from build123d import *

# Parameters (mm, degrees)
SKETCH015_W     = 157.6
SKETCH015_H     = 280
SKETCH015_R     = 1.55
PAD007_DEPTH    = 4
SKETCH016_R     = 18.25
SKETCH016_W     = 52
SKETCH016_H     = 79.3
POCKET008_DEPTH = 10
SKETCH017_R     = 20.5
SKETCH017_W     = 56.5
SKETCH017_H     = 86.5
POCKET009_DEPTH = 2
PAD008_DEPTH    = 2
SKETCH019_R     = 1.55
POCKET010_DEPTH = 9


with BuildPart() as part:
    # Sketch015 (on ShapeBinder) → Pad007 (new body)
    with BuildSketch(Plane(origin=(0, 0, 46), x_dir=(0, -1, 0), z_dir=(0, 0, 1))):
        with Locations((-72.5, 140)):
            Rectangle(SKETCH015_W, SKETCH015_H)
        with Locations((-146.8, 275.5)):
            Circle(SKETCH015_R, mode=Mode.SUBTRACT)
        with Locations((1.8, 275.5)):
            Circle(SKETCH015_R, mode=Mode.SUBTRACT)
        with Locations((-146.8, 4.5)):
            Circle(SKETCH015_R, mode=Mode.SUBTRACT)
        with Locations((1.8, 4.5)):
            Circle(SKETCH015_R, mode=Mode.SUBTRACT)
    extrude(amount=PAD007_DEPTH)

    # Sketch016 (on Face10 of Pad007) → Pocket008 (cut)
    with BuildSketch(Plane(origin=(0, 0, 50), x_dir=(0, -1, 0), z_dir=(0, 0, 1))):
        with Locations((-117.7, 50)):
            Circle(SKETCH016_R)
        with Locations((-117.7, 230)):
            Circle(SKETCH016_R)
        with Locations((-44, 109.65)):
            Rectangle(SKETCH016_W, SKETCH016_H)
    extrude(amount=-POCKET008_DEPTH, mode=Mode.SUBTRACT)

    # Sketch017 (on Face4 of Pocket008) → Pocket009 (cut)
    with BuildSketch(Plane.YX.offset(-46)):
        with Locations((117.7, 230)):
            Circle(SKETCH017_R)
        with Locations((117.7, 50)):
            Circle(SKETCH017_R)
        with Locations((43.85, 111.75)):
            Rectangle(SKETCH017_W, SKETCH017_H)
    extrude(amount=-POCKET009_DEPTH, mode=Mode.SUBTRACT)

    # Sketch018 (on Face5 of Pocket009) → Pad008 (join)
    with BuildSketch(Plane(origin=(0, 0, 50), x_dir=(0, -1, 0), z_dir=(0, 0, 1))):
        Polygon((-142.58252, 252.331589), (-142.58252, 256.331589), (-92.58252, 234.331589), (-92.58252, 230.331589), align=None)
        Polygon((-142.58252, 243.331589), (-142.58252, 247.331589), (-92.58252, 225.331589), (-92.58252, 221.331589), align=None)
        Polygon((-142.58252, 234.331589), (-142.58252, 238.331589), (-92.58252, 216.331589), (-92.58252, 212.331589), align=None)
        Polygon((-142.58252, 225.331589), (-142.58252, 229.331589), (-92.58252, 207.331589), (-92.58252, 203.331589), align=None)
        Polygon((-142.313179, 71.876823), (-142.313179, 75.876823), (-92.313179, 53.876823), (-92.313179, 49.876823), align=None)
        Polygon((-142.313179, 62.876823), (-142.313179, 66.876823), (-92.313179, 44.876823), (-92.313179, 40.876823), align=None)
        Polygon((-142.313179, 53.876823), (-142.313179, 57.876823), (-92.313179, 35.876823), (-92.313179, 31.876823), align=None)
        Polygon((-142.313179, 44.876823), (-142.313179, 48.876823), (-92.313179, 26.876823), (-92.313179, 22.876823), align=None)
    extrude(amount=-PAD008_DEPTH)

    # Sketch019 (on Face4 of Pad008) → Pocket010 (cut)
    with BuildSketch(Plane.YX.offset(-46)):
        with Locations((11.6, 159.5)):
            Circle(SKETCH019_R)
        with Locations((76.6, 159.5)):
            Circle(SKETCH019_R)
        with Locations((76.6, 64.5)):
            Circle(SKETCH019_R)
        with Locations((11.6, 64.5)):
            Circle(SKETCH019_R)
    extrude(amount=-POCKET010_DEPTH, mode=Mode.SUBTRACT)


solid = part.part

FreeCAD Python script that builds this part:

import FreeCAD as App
import Part
import Sketcher
from FreeCAD import Vector


def add_polygon(sketch, points):
    """Adds a closed chain of lines whose ends are joined by coincident constraints."""
    first, n = sketch.GeometryCount, len(points)
    for a, b in zip(points, points[1:] + points[:1]):
        sketch.addGeometry(Part.LineSegment(App.Vector(*a, 0), App.Vector(*b, 0)), False)
    for i in range(n):
        sketch.addConstraint(Sketcher.Constraint("Coincident", first + i, 2, first + (i + 1) % n, 1))

doc = App.newDocument("Part")
body = doc.addObject("PartDesign::Body", "Body")

sketch1 = body.newObject("Sketcher::SketchObject", "Sketch")
sketch1.AttachmentSupport = (doc.getObject("XY_Plane"), [""])
sketch1.MapMode = "FlatFace"
sketch1.AttachmentOffset = App.Placement(Vector(0, 0, 46), App.Rotation())
add_polygon(sketch1, [(280, 151.3), (0, 151.3), (0, -6.3), (280, -6.3)])
sketch1.addGeometry(Part.Circle(Vector(4.5, 146.8, 0), Vector(0, 0, 1), 1.6), False)
sketch1.addGeometry(Part.Circle(Vector(4.5, -1.8, 0), Vector(0, 0, 1), 1.6), False)
sketch1.addGeometry(Part.Circle(Vector(275.5, 146.8, 0), Vector(0, 0, 1), 1.6), False)
sketch1.addGeometry(Part.Circle(Vector(275.5, -1.8, 0), Vector(0, 0, 1), 1.6), False)
sketch1.addConstraint([
    Sketcher.Constraint("Horizontal", 0),
    Sketcher.Constraint("Vertical", 1),
    Sketcher.Constraint("Horizontal", 2),
    Sketcher.Constraint("Vertical", 3),
    Sketcher.Constraint("Equal", 4, 5),
    Sketcher.Constraint("Equal", 5, 6),
    Sketcher.Constraint("Equal", 6, 7),
    Sketcher.Constraint("PointOnObject", 0, 2, -2),
    Sketcher.Constraint("Horizontal", 4, 3, 6, 3),
    Sketcher.Constraint("Horizontal", 5, 3, 7, 3),
    Sketcher.Constraint("Vertical", 4, 3, 5, 3),
    Sketcher.Constraint("Vertical", 6, 3, 7, 3),
    Sketcher.Constraint("Diameter", 4, 3.1),
    Sketcher.Constraint("DistanceX", 0, 2, 0, 1, 280.0),
    Sketcher.Constraint("DistanceY", 1, 2, 1, 1, 157.6),
    Sketcher.Constraint("DistanceX", 4, 3, 6, 3, 271.0),
    Sketcher.Constraint("DistanceX", -1, 1, 4, 3, 4.5),
    Sketcher.Constraint("DistanceY", -1, 1, 4, 3, 146.8),
    Sketcher.Constraint("DistanceY", 5, 3, -1, 1, 1.8),
    Sketcher.Constraint("DistanceY", -1, 1, 0, 2, 151.3),
])
pad1 = body.newObject("PartDesign::Pad", "Pad")
pad1.Profile = sketch1
pad1.Length = 4

sketch2 = body.newObject("Sketcher::SketchObject", "Sketch001")
sketch2.AttachmentSupport = (doc.getObject("XY_Plane"), [""])
sketch2.MapMode = "FlatFace"
sketch2.AttachmentOffset = App.Placement(Vector(0, 0, 50), App.Rotation())
sketch2.addGeometry(Part.Circle(Vector(50, 118, 0), Vector(0, 0, 1), 18), False)
sketch2.addGeometry(Part.Circle(Vector(230, 118, 0), Vector(0, 0, 1), 18), False)
add_polygon(sketch2, [(149, 70), (70, 70), (70, 18), (149, 18)])
sketch2.addConstraint([
    Sketcher.Constraint("Horizontal", 2),
    Sketcher.Constraint("Vertical", 3),
    Sketcher.Constraint("Horizontal", 4),
    Sketcher.Constraint("Vertical", 5),
    Sketcher.Constraint("Equal", 0, 1),
    Sketcher.Constraint("Horizontal", 0, 3, 1, 3),
    Sketcher.Constraint("Diameter", 0, 36.5),
    Sketcher.Constraint("DistanceY", 3, 2, 3, 1, 52.0),
    Sketcher.Constraint("DistanceX", 2, 2, 2, 1, 79.3),
    Sketcher.Constraint("DistanceX", -1, 1, 0, 3, 50.0),
    Sketcher.Constraint("DistanceX", -1, 1, 1, 3, 230.0),
    Sketcher.Constraint("DistanceX", -1, 1, 2, 2, 70.0),
    Sketcher.Constraint("DistanceY", -1, 1, 2, 2, 70.0),
    Sketcher.Constraint("DistanceY", -1, 1, 0, 3, 117.7),
])
pocket1 = body.newObject("PartDesign::Pocket", "Pocket")
pocket1.Profile = sketch2
pocket1.Length = 10

sketch3 = body.newObject("Sketcher::SketchObject", "Sketch002")
sketch3.AttachmentSupport = (doc.getObject("XY_Plane"), [""])
sketch3.MapMode = "FlatFace"
sketch3.AttachmentOffset = App.Placement(Vector(0, 0, 46), App.Rotation())
sketch3.addGeometry(Part.Circle(Vector(230, 118, 0), Vector(0, 0, 1), 20), False)
sketch3.addGeometry(Part.Circle(Vector(50, 118, 0), Vector(0, 0, 1), 20), False)
add_polygon(sketch3, [(155, 16), (68, 16), (68, 72), (155, 72)])
sketch3.addConstraint([
    Sketcher.Constraint("Horizontal", 2),
    Sketcher.Constraint("Vertical", 3),
    Sketcher.Constraint("Horizontal", 4),
    Sketcher.Constraint("Vertical", 5),
    Sketcher.Constraint("Equal", 0, 1),
    Sketcher.Constraint("Horizontal", 0, 3, 1, 3),
    Sketcher.Constraint("Diameter", 0, 41.0),
    Sketcher.Constraint("DistanceX", 2, 2, 2, 1, 86.5),
    Sketcher.Constraint("DistanceY", 3, 1, 3, 2, 56.5),
    Sketcher.Constraint("DistanceX", -1, 1, 0, 3, 230.0),
    Sketcher.Constraint("DistanceX", -1, 1, 1, 3, 50.0),
    Sketcher.Constraint("DistanceX", -1, 1, 4, 2, 155.0),
    Sketcher.Constraint("DistanceY", -1, 1, 0, 3, 117.7),
    Sketcher.Constraint("DistanceY", -1, 1, 2, 2, 15.6),
])
pocket2 = body.newObject("PartDesign::Pocket", "Pocket001")
pocket2.Profile = sketch3
pocket2.Length = 2
pocket2.Reversed = True

sketch4 = body.newObject("Sketcher::SketchObject", "Sketch003")
sketch4.AttachmentSupport = (doc.getObject("XY_Plane"), [""])
sketch4.MapMode = "FlatFace"
sketch4.AttachmentOffset = App.Placement(Vector(0, 0, 50), App.Rotation())
add_polygon(sketch4, [(256.3, 142.6), (252.3, 142.6), (230.3, 92.6), (234.3, 92.6)])
add_polygon(sketch4, [(247.3, 142.6), (243.3, 142.6), (221.3, 92.6), (225.3, 92.6)])
add_polygon(sketch4, [(238.3, 142.6), (234.3, 142.6), (212.3, 92.6), (216.3, 92.6)])
add_polygon(sketch4, [(229.3, 142.6), (225.3, 142.6), (203.3, 92.6), (207.3, 92.6)])
add_polygon(sketch4, [(75.9, 142.3), (71.9, 142.3), (49.9, 92.3), (53.9, 92.3)])
add_polygon(sketch4, [(66.9, 142.3), (62.9, 142.3), (40.9, 92.3), (44.9, 92.3)])
add_polygon(sketch4, [(57.9, 142.3), (53.9, 142.3), (31.9, 92.3), (35.9, 92.3)])
add_polygon(sketch4, [(48.9, 142.3), (44.9, 142.3), (22.9, 92.3), (26.9, 92.3)])
sketch4.addConstraint([
    Sketcher.Constraint("Horizontal", 0),
    Sketcher.Constraint("Horizontal", 2),
    Sketcher.Constraint("Horizontal", 4),
    Sketcher.Constraint("Horizontal", 6),
    Sketcher.Constraint("Horizontal", 8),
    Sketcher.Constraint("Horizontal", 10),
    Sketcher.Constraint("Horizontal", 12),
    Sketcher.Constraint("Horizontal", 14),
    Sketcher.Constraint("Horizontal", 16),
    Sketcher.Constraint("Horizontal", 18),
    Sketcher.Constraint("Horizontal", 20),
    Sketcher.Constraint("Horizontal", 22),
    Sketcher.Constraint("Horizontal", 24),
    Sketcher.Constraint("Horizontal", 26),
    Sketcher.Constraint("Horizontal", 28),
    Sketcher.Constraint("Horizontal", 30),
    Sketcher.Constraint("Parallel", 1, 3),
    Sketcher.Constraint("Parallel", 3, 5),
    Sketcher.Constraint("Parallel", 5, 7),
    Sketcher.Constraint("Parallel", 7, 9),
    Sketcher.Constraint("Parallel", 9, 11),
    Sketcher.Constraint("Parallel", 11, 13),
    Sketcher.Constraint("Parallel", 13, 15),
    Sketcher.Constraint("Parallel", 15, 17),
    Sketcher.Constraint("Parallel", 17, 19),
    Sketcher.Constraint("Parallel", 19, 21),
    Sketcher.Constraint("Parallel", 21, 23),
    Sketcher.Constraint("Parallel", 23, 25),
    Sketcher.Constraint("Parallel", 25, 27),
    Sketcher.Constraint("Parallel", 27, 29),
    Sketcher.Constraint("Parallel", 29, 31),
    Sketcher.Constraint("Horizontal", 3, 2, 4, 2),
    Sketcher.Constraint("Horizontal", 2, 2, 5, 2),
    Sketcher.Constraint("Horizontal", 7, 2, 8, 2),
    Sketcher.Constraint("Horizontal", 6, 2, 9, 2),
    Sketcher.Constraint("Horizontal", 11, 2, 12, 2),
    Sketcher.Constraint("Horizontal", 10, 2, 13, 2),
    Sketcher.Constraint("Horizontal", 19, 2, 20, 2),
    Sketcher.Constraint("Horizontal", 18, 2, 21, 2),
    Sketcher.Constraint("Horizontal", 23, 2, 24, 2),
    Sketcher.Constraint("Horizontal", 22, 2, 25, 2),
    Sketcher.Constraint("Horizontal", 27, 2, 28, 2),
    Sketcher.Constraint("Horizontal", 26, 2, 29, 2),
    Sketcher.Constraint("Vertical", 2, 2, 8, 2),
    Sketcher.Constraint("Vertical", 6, 2, 12, 2),
    Sketcher.Constraint("Vertical", 18, 2, 24, 2),
    Sketcher.Constraint("Vertical", 22, 2, 28, 2),
    Sketcher.Constraint("Equal", 2, 4),
    Sketcher.Constraint("Equal", 6, 8),
    Sketcher.Constraint("Equal", 10, 12),
    Sketcher.Constraint("Equal", 14, 16),
    Sketcher.Constraint("Equal", 18, 20),
    Sketcher.Constraint("Equal", 22, 24),
    Sketcher.Constraint("Equal", 26, 28),
    Sketcher.Constraint("Equal", 15, 17),
    Sketcher.Constraint("DistanceX", 0, 2, 0, 1, 4.0),
    Sketcher.Constraint("DistanceX", 1, 2, 0, 2, 22.0),
    Sketcher.Constraint("DistanceY", 1, 2, 0, 2, 50.0),
    Sketcher.Constraint("DistanceX", 4, 2, 0, 2, 9.0),
    Sketcher.Constraint("DistanceX", 20, 2, 16, 2, 9.0),
    Sketcher.Constraint("DistanceX", -1, 1, 0, 2, 252.331589),
    Sketcher.Constraint("DistanceY", -1, 1, 0, 2, 142.58252),
    Sketcher.Constraint("DistanceY", -1, 1, 16, 2, 142.313179),
    Sketcher.Constraint("DistanceX", -1, 1, 16, 2, 71.876823),
])
pad2 = body.newObject("PartDesign::Pad", "Pad001")
pad2.Profile = sketch4
pad2.Length = 2
pad2.Reversed = True

sketch5 = body.newObject("Sketcher::SketchObject", "Sketch004")
sketch5.AttachmentSupport = (doc.getObject("XY_Plane"), [""])
sketch5.MapMode = "FlatFace"
sketch5.AttachmentOffset = App.Placement(Vector(0, 0, 46), App.Rotation())
sketch5.addGeometry([
    Part.Circle(Vector(159.5, 11.6, 0), Vector(0, 0, 1), 1.6),
    Part.Circle(Vector(159.5, 76.6, 0), Vector(0, 0, 1), 1.6),
    Part.Circle(Vector(64.5, 76.6, 0), Vector(0, 0, 1), 1.6),
    Part.Circle(Vector(64.5, 11.6, 0), Vector(0, 0, 1), 1.6),
], False)
sketch5.addConstraint([
    Sketcher.Constraint("Equal", 0, 1),
    Sketcher.Constraint("Equal", 1, 2),
    Sketcher.Constraint("Equal", 2, 3),
    Sketcher.Constraint("Horizontal", 1, 3, 2, 3),
    Sketcher.Constraint("Horizontal", 0, 3, 3, 3),
    Sketcher.Constraint("Vertical", 0, 3, 1, 3),
    Sketcher.Constraint("Vertical", 2, 3, 3, 3),
    Sketcher.Constraint("Diameter", 0, 3.1),
    Sketcher.Constraint("DistanceY", 0, 3, 1, 3, 65.0),
    Sketcher.Constraint("DistanceX", 2, 3, 1, 3, 95.0),
    Sketcher.Constraint("DistanceX", -1, 1, 0, 3, 159.5),
    Sketcher.Constraint("DistanceY", -1, 1, 0, 3, 11.6),
])
pocket3 = body.newObject("PartDesign::Pocket", "Pocket002")
pocket3.Profile = sketch5
pocket3.Length = 9
pocket3.Reversed = True

doc.recompute()
